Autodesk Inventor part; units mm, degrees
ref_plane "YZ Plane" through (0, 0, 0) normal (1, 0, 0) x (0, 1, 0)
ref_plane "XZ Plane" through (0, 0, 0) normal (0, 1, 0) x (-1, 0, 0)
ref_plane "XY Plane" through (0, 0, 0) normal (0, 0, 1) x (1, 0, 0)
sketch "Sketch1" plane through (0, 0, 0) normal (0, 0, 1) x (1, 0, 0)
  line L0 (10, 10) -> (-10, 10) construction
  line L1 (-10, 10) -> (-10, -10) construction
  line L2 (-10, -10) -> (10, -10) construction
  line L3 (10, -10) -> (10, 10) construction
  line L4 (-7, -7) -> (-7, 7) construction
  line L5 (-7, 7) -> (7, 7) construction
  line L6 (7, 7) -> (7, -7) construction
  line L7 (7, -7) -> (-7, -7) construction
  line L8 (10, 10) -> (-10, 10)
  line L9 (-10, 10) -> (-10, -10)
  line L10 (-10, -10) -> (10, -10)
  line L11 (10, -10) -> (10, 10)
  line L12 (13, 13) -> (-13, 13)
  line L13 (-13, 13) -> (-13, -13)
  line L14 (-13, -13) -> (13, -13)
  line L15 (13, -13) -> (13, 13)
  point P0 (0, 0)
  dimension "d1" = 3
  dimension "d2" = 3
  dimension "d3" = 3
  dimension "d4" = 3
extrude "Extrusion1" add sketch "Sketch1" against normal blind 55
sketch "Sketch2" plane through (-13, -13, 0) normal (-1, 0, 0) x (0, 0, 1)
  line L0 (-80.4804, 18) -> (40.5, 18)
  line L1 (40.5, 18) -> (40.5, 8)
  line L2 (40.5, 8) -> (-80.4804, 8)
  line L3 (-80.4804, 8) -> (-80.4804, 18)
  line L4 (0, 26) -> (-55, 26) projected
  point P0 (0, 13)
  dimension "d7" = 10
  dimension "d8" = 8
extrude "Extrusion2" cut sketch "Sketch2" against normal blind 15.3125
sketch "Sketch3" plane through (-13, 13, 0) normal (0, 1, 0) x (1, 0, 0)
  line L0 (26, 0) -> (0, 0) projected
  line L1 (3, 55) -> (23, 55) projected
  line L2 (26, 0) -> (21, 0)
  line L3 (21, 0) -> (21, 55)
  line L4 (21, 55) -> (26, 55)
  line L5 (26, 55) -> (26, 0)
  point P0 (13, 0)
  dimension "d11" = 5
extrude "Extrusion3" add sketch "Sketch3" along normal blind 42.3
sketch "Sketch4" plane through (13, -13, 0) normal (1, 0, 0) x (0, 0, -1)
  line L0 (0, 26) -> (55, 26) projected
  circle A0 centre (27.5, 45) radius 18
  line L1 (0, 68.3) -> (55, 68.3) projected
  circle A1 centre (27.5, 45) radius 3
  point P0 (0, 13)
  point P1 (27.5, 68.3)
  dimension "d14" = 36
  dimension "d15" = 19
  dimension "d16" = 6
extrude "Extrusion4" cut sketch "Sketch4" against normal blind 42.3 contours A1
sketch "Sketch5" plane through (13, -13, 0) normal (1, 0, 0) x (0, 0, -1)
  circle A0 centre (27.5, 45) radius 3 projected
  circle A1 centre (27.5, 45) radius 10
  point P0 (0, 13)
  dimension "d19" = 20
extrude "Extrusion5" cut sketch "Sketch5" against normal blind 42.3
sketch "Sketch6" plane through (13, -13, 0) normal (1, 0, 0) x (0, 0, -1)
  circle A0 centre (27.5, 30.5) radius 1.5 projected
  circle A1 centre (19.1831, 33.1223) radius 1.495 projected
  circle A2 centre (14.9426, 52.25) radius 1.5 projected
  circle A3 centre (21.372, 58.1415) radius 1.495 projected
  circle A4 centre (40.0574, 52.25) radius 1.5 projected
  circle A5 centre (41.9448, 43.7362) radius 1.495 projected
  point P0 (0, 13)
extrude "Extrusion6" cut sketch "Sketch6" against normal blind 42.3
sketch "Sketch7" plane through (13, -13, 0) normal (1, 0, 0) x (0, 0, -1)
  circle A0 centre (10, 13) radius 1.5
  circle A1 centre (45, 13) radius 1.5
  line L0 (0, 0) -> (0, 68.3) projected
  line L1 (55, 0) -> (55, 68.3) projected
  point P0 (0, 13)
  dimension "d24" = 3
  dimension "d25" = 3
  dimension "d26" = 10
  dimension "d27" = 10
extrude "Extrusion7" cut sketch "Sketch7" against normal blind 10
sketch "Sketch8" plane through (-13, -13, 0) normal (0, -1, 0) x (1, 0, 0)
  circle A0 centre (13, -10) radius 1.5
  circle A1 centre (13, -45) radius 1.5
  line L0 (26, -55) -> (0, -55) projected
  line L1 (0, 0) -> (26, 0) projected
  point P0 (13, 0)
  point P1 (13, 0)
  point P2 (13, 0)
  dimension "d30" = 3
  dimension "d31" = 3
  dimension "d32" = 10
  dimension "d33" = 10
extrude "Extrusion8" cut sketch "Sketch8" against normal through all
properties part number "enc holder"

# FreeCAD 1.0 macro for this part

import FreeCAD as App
import Part
import Sketcher
Q = App.Units.Quantity


def add_polygon(sketch, points):
    """Adds a closed chain of lines whose ends are joined by coincident constraints."""
    first, n = sketch.GeometryCount, len(points)
    for a, b in zip(points, points[1:] + points[:1]):
        sketch.addGeometry(Part.LineSegment(App.Vector(*a, 0), App.Vector(*b, 0)), False)
    for i in range(n):
        sketch.addConstraint(Sketcher.Constraint("Coincident", first + i, 2, first + (i + 1) % n, 1))

doc = App.newDocument("Part")
body = doc.addObject("PartDesign::Body", "Body")

sketch1 = body.newObject("Sketcher::SketchObject", "Sketch")
sketch1.AttachmentSupport = (doc.getObject("XY_Plane"), [""])
sketch1.MapMode = "FlatFace"
add_polygon(sketch1, [(13, -13), (13, 13), (-13, 13), (-13, -13)])
add_polygon(sketch1, [(-10, 10), (10, 10), (10, -10), (-10, -10)])
sketch1.addConstraint(Sketcher.Constraint("Vertical", 0))
sketch1.addConstraint(Sketcher.Constraint("Horizontal", 1))
sketch1.addConstraint(Sketcher.Constraint("Vertical", 2))
sketch1.addConstraint(Sketcher.Constraint("Horizontal", 3))
sketch1.addConstraint(Sketcher.Constraint("Horizontal", 4))
sketch1.addConstraint(Sketcher.Constraint("Vertical", 5))
sketch1.addConstraint(Sketcher.Constraint("Horizontal", 6))
sketch1.addConstraint(Sketcher.Constraint("Vertical", 7))
sketch1.addConstraint(Sketcher.Constraint("Symmetric", 0, 2, 2, 2, -1, 1))
sketch1.addConstraint(Sketcher.Constraint("Symmetric", 4, 2, 6, 2, -1, 1))
sketch1.addConstraint(Sketcher.Constraint("Equal", 3, 0))
sketch1.addConstraint(Sketcher.Constraint("Equal", 6, 5))
sketch1.addConstraint(Sketcher.Constraint("DistanceX", 4, 2, 0, 2, Q("3 mm")))
sketch1.addConstraint(Sketcher.Constraint("DistanceX", 1, 2, 1, 1, Q("26 mm")))
pad1 = body.newObject("PartDesign::Pad", "Pad")
pad1.Profile = sketch1
pad1.Length = 55
pad1.Reversed = True

sketch2 = body.newObject("Sketcher::SketchObject", "Sketch001")
sketch2.AttachmentSupport = (doc.getObject("YZ_Plane"), [""])
sketch2.MapMode = "FlatFace"
sketch2.AttachmentOffset = App.Placement(App.Vector(0, 0, -13), App.Rotation())
add_polygon(sketch2, [(5, 40), (5, -80), (-5, -80), (-5, 40)])
sketch2.addConstraint(Sketcher.Constraint("Vertical", 0))
sketch2.addConstraint(Sketcher.Constraint("Horizontal", 1))
sketch2.addConstraint(Sketcher.Constraint("Vertical", 2))
sketch2.addConstraint(Sketcher.Constraint("Horizontal", 3))
sketch2.addConstraint(Sketcher.Constraint("DistanceX", 1, 2, 1, 1, Q("10 mm")))
sketch2.addConstraint(Sketcher.Constraint("DistanceX", -1, 1, 0, 2, Q("5 mm")))
sketch2.addConstraint(Sketcher.Constraint("DistanceY", -1, 1, 2, 2, Q("40.5 mm")))
sketch2.addConstraint(Sketcher.Constraint("DistanceY", 0, 2, 0, 1, Q("120.9804 mm")))
pocket1 = body.newObject("PartDesign::Pocket", "Pocket")
pocket1.Profile = sketch2
pocket1.Length = 15.3125
pocket1.Reversed = True

sketch3 = body.newObject("Sketcher::SketchObject", "Sketch002")
sketch3.AttachmentSupport = (doc.getObject("XZ_Plane"), [""])
sketch3.MapMode = "FlatFace"
sketch3.AttachmentOffset = App.Placement(App.Vector(0, 0, -13), App.Rotation())
add_polygon(sketch3, [(8, 0), (13, 0), (13, -55), (8, -55)])
sketch3.addConstraint(Sketcher.Constraint("Horizontal", 0))
sketch3.addConstraint(Sketcher.Constraint("Vertical", 1))
sketch3.addConstraint(Sketcher.Constraint("Horizontal", 2))
sketch3.addConstraint(Sketcher.Constraint("Vertical", 3))
sketch3.addConstraint(Sketcher.Constraint("PointOnObject", 0, 2, -1))
sketch3.addConstraint(Sketcher.Constraint("DistanceX", 0, 1, 0, 2, Q("5 mm")))
sketch3.addConstraint(Sketcher.Constraint("DistanceY", 1, 2, 1, 1, Q("55 mm")))
sketch3.addConstraint(Sketcher.Constraint("DistanceX", -1, 1, 0, 2, Q("13 mm")))
pad2 = body.newObject("PartDesign::Pad", "Pad001")
pad2.Profile = sketch3
pad2.Length = 42.3
pad2.Reversed = True

sketch4 = body.newObject("Sketcher::SketchObject", "Sketch003")
sketch4.AttachmentSupport = (doc.getObject("YZ_Plane"), [""])
sketch4.MapMode = "FlatFace"
sketch4.AttachmentOffset = App.Placement(App.Vector(0, 0, 13), App.Rotation())
sketch4.addGeometry(Part.Circle(App.Vector(32, -27.5, 0), App.Vector(0, 0, 1), 3), False)
sketch4.addConstraint(Sketcher.Constraint("Diameter", 0, Q("6 mm")))
sketch4.addConstraint(Sketcher.Constraint("DistanceX", -1, 1, 0, 3, Q("32 mm")))
sketch4.addConstraint(Sketcher.Constraint("DistanceY", 0, 3, -1, 1, Q("27.5 mm")))
pocket2 = body.newObject("PartDesign::Pocket", "Pocket001")
pocket2.Profile = sketch4
pocket2.Length = 42.3

sketch5 = body.newObject("Sketcher::SketchObject", "Sketch004")
sketch5.AttachmentSupport = (doc.getObject("YZ_Plane"), [""])
sketch5.MapMode = "FlatFace"
sketch5.AttachmentOffset = App.Placement(App.Vector(0, 0, 13), App.Rotation())
sketch5.addGeometry(Part.Circle(App.Vector(32, -27.5, 0), App.Vector(0, 0, 1), 10), False)
sketch5.addGeometry(Part.Circle(App.Vector(32, -27.5, 0), App.Vector(0, 0, 1), 3), False)
sketch5.addConstraint(Sketcher.Constraint("Coincident", 1, 3, 0, 3))
sketch5.addConstraint(Sketcher.Constraint("Diameter", 0, Q("20 mm")))
sketch5.addConstraint(Sketcher.Constraint("Diameter", 1, Q("6 mm")))
sketch5.addConstraint(Sketcher.Constraint("DistanceX", -1, 1, 0, 3, Q("32 mm")))
sketch5.addConstraint(Sketcher.Constraint("DistanceY", 0, 3, -1, 1, Q("27.5 mm")))
pocket3 = body.newObject("PartDesign::Pocket", "Pocket002")
pocket3.Profile = sketch5
pocket3.Length = 42.3

sketch6 = body.newObject("Sketcher::SketchObject", "Sketch005")
sketch6.AttachmentSupport = (doc.getObject("YZ_Plane"), [""])
sketch6.MapMode = "FlatFace"
sketch6.AttachmentOffset = App.Placement(App.Vector(0, 0, 13), App.Rotation())
sketch6.addGeometry(Part.Circle(App.Vector(17.5, -27.5, 0), App.Vector(0, 0, 1), 1.5), False)
sketch6.addGeometry(Part.Circle(App.Vector(20.1, -19.2, 0), App.Vector(0, 0, 1), 1.5), False)
sketch6.addGeometry(Part.Circle(App.Vector(39.2, -14.9, 0), App.Vector(0, 0, 1), 1.5), False)
sketch6.addGeometry(Part.Circle(App.Vector(45.1, -21.4, 0), App.Vector(0, 0, 1), 1.5), False)
sketch6.addGeometry(Part.Circle(App.Vector(39.2, -40.1, 0), App.Vector(0, 0, 1), 1.5), False)
sketch6.addGeometry(Part.Circle(App.Vector(30.7, -41.9, 0), App.Vector(0, 0, 1), 1.5), False)
sketch6.addConstraint(Sketcher.Constraint("Equal", 0, 2))
sketch6.addConstraint(Sketcher.Constraint("Equal", 1, 3))
sketch6.addConstraint(Sketcher.Constraint("Equal", 2, 4))
sketch6.addConstraint(Sketcher.Constraint("Equal", 3, 5))
sketch6.addConstraint(Sketcher.Constraint("Vertical", 2, 3, 4, 3))
sketch6.addConstraint(Sketcher.Constraint("Diameter", 0, Q("3 mm")))
sketch6.addConstraint(Sketcher.Constraint("Diameter", 1, Q("2.99 mm")))
sketch6.addConstraint(Sketcher.Constraint("DistanceX", -1, 1, 0, 3, Q("17.5 mm")))
sketch6.addConstraint(Sketcher.Constraint("DistanceY", 0, 3, -1, 1, Q("27.5 mm")))
sketch6.addConstraint(Sketcher.Constraint("DistanceX", -1, 1, 2, 3, Q("39.25 mm")))
sketch6.addConstraint(Sketcher.Constraint("DistanceY", 1, 3, -1, 1, Q("19.183 mm")))
sketch6.addConstraint(Sketcher.Constraint("DistanceY", 3, 3, -1, 1, Q("21.372 mm")))
sketch6.addConstraint(Sketcher.Constraint("DistanceX", 1, 3, 5, 3, Q("10.614 mm")))
sketch6.addConstraint(Sketcher.Constraint("DistanceX", -1, 1, 1, 3, Q("20.1223 mm")))
sketch6.addConstraint(Sketcher.Constraint("DistanceY", 2, 3, -1, 1, Q("14.9426 mm")))
sketch6.addConstraint(Sketcher.Constraint("DistanceX", -1, 1, 3, 3, Q("45.1415 mm")))
sketch6.addConstraint(Sketcher.Constraint("DistanceY", 4, 3, -1, 1, Q("40.0574 mm")))
sketch6.addConstraint(Sketcher.Constraint("DistanceY", 5, 3, -1, 1, Q("41.9448 mm")))
pocket4 = body.newObject("PartDesign::Pocket", "Pocket003")
pocket4.Profile = sketch6
pocket4.Length = 42.3

sketch7 = body.newObject("Sketcher::SketchObject", "Sketch006")
sketch7.AttachmentSupport = (doc.getObject("YZ_Plane"), [""])
sketch7.MapMode = "FlatFace"
sketch7.AttachmentOffset = App.Placement(App.Vector(0, 0, 13), App.Rotation())
sketch7.addGeometry(Part.Circle(App.Vector(0, -10, 0), App.Vector(0, 0, 1), 1.5), False)
sketch7.addGeometry(Part.Circle(App.Vector(0, -45, 0), App.Vector(0, 0, 1), 1.5), False)
sketch7.addConstraint(Sketcher.Constraint("Equal", 0, 1))
sketch7.addConstraint(Sketcher.Constraint("PointOnObject", 0, 3, -2))
sketch7.addConstraint(Sketcher.Constraint("PointOnObject", 1, 3, -2))
sketch7.addConstraint(Sketcher.Constraint("Diameter", 0, Q("3 mm")))
sketch7.addConstraint(Sketcher.Constraint("DistanceY", 0, 3, -1, 1, Q("10 mm")))
sketch7.addConstraint(Sketcher.Constraint("DistanceY", 1, 3, -1, 1, Q("45 mm")))
pocket5 = body.newObject("PartDesign::Pocket", "Pocket004")
pocket5.Profile = sketch7
pocket5.Length = 10

sketch8 = body.newObject("Sketcher::SketchObject", "Sketch007")
sketch8.AttachmentSupport = (doc.getObject("XZ_Plane"), [""])
sketch8.MapMode = "FlatFace"
sketch8.AttachmentOffset = App.Placement(App.Vector(0, 0, 13), App.Rotation())
sketch8.addGeometry(Part.Circle(App.Vector(0, -10, 0), App.Vector(0, 0, 1), 1.5), False)
sketch8.addGeometry(Part.Circle(App.Vector(0, -45, 0), App.Vector(0, 0, 1), 1.5), False)
sketch8.addConstraint(Sketcher.Constraint("Equal", 0, 1))
sketch8.addConstraint(Sketcher.Constraint("PointOnObject", 0, 3, -2))
sketch8.addConstraint(Sketcher.Constraint("PointOnObject", 1, 3, -2))
sketch8.addConstraint(Sketcher.Constraint("Diameter", 0, Q("3 mm")))
sketch8.addConstraint(Sketcher.Constraint("DistanceY", 0, 3, -1, 1, Q("10 mm")))
sketch8.addConstraint(Sketcher.Constraint("DistanceY", 1, 3, -1, 1, Q("45 mm")))
pocket6 = body.newObject("PartDesign::Pocket", "Pocket005")
pocket6.Profile = sketch8
pocket6.Type = "ThroughAll"

doc.recompute()
